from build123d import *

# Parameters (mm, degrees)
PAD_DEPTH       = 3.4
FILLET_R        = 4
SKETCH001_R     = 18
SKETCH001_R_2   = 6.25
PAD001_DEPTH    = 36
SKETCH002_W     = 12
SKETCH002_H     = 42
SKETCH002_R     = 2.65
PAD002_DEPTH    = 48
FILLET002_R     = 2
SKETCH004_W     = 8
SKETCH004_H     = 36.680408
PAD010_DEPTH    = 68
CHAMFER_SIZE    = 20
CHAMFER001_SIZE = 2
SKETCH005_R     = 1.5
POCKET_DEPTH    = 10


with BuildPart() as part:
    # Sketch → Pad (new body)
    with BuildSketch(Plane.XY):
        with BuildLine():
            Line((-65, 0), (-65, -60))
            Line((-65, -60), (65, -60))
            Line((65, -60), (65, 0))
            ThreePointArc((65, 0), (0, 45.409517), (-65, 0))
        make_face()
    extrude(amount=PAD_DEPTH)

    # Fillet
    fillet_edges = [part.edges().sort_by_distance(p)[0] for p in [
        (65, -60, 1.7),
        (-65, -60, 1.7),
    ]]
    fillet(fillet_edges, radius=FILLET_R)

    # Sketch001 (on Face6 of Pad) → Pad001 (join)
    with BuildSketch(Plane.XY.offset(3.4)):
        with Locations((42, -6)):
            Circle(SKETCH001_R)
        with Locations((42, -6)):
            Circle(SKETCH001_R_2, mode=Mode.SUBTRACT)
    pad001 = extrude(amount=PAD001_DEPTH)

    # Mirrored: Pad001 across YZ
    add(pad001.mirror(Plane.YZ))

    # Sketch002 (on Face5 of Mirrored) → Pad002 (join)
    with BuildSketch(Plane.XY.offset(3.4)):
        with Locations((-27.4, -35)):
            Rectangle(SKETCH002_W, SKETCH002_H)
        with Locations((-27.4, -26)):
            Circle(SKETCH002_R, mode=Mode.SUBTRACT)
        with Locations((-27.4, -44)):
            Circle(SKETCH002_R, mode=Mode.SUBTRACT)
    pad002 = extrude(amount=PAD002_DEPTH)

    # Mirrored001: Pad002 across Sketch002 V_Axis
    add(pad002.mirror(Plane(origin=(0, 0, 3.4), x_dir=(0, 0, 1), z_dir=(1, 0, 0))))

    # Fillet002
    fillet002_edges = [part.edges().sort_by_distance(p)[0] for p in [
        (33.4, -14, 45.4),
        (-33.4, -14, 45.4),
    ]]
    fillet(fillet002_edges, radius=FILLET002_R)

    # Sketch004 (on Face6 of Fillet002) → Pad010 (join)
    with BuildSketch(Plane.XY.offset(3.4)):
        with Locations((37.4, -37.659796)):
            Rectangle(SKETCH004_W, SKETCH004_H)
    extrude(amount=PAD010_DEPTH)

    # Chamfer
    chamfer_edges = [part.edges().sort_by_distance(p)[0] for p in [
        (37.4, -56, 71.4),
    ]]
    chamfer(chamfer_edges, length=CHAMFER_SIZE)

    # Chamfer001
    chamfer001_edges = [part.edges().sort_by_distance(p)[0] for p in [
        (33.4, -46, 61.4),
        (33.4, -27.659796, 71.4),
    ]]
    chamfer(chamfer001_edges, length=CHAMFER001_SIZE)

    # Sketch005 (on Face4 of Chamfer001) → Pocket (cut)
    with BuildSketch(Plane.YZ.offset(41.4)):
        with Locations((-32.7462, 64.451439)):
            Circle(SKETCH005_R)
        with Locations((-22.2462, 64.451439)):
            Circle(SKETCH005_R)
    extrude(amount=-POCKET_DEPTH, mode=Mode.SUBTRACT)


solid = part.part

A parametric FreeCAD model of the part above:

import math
import FreeCAD as App
import Part
import Sketcher
Q = App.Units.Quantity


def edges_at(feature, points):
    """Names of the edges that pass closest to the given points."""
    edges = feature.Shape.Edges
    near = lambda p: min(range(len(edges)), key=lambda i: edges[i].distToShape(Part.Vertex(*p))[0])
    return sorted({f"Edge{near(p) + 1}" for p in points})


def add_polygon(sketch, points):
    """Adds a closed chain of lines whose ends are joined by coincident constraints."""
    first, n = sketch.GeometryCount, len(points)
    for a, b in zip(points, points[1:] + points[:1]):
        sketch.addGeometry(Part.LineSegment(App.Vector(*a, 0), App.Vector(*b, 0)), False)
    for i in range(n):
        sketch.addConstraint(Sketcher.Constraint("Coincident", first + i, 2, first + (i + 1) % n, 1))

doc = App.newDocument("Part")
body = doc.addObject("PartDesign::Body", "Body")

sketch1 = body.newObject("Sketcher::SketchObject", "Sketch")
sketch1.AttachmentSupport = (doc.getObject("XY_Plane"), [""])
sketch1.MapMode = "FlatFace"
sketch1.addGeometry(Part.LineSegment(App.Vector(-65, 0, 0), App.Vector(-65, -60, 0)), False)
sketch1.addGeometry(Part.LineSegment(App.Vector(-65, -60, 0), App.Vector(65, -60, 0)), False)
sketch1.addGeometry(Part.LineSegment(App.Vector(65, -60, 0), App.Vector(65, 0, 0)), False)
sketch1.addGeometry(Part.ArcOfCircle(Part.Circle(App.Vector(0, -23.816326, 0), App.Vector(0, 0, 1), 69.225843), math.radians(20.123088), math.radians(159.876912)), False)
sketch1.addConstraint(Sketcher.Constraint("Coincident", 0, 2, 1, 1))
sketch1.addConstraint(Sketcher.Constraint("Coincident", 1, 2, 2, 1))
sketch1.addConstraint(Sketcher.Constraint("Coincident", 2, 2, 3, 1))
sketch1.addConstraint(Sketcher.Constraint("Coincident", 3, 2, 0, 1))
sketch1.addConstraint(Sketcher.Constraint("Vertical", 0))
sketch1.addConstraint(Sketcher.Constraint("Horizontal", 1))
sketch1.addConstraint(Sketcher.Constraint("Vertical", 2))
sketch1.addConstraint(Sketcher.Constraint("Symmetric", 2, 2, 3, 2, -1, 1))
sketch1.addConstraint(Sketcher.Constraint("PointOnObject", 3, 3, -2))
sketch1.addConstraint(Sketcher.Constraint("DistanceX", 1, 1, 1, 2, Q("130 mm")))
sketch1.addConstraint(Sketcher.Constraint("DistanceY", 0, 2, 0, 1, Q("60 mm")))
sketch1.addConstraint(Sketcher.Constraint("Radius", 3, Q("69.225843 mm")))
pad1 = body.newObject("PartDesign::Pad", "Pad")
pad1.Profile = sketch1
pad1.Length = 3.4
doc.recompute()

fillet = body.newObject("PartDesign::Fillet", "Fillet")
fillet.Base = (pad1, edges_at(pad1, [(65, -60, 1.7), (-65, -60, 1.7)]))
fillet.Radius = 4

sketch2 = body.newObject("Sketcher::SketchObject", "Sketch001")
sketch2.AttachmentSupport = (doc.getObject("XY_Plane"), [""])
sketch2.MapMode = "FlatFace"
sketch2.AttachmentOffset = App.Placement(App.Vector(0, 0, 3.4), App.Rotation())
sketch2.addGeometry(Part.Circle(App.Vector(42, -6, 0), App.Vector(0, 0, 1), 18), False)
sketch2.addGeometry(Part.Circle(App.Vector(42, -6, 0), App.Vector(0, 0, 1), 6.25), False)
sketch2.addConstraint(Sketcher.Constraint("Coincident", 1, 3, 0, 3))
sketch2.addConstraint(Sketcher.Constraint("Diameter", 0, Q("36 mm")))
sketch2.addConstraint(Sketcher.Constraint("Diameter", 1, Q("12.5 mm")))
sketch2.addConstraint(Sketcher.Constraint("DistanceX", -1, 1, 0, 3, Q("42 mm")))
sketch2.addConstraint(Sketcher.Constraint("DistanceY", 0, 3, -1, 1, Q("6 mm")))
pad2 = body.newObject("PartDesign::Pad", "Pad001")
pad2.Profile = sketch2
pad2.Length = 36
doc.recompute()

mirrored = body.newObject("PartDesign::Mirrored", "Mirrored")
mirrored.Originals = [pad2]
mirrored.MirrorPlane = (doc.getObject("YZ_Plane"), [""])
body.Tip = mirrored

sketch3 = body.newObject("Sketcher::SketchObject", "Sketch002")
sketch3.AttachmentSupport = (doc.getObject("XY_Plane"), [""])
sketch3.MapMode = "FlatFace"
sketch3.AttachmentOffset = App.Placement(App.Vector(0, 0, 3.4), App.Rotation())
add_polygon(sketch3, [(-33.4, -14), (-33.4, -56), (-21.4, -56), (-21.4, -14)])
sketch3.addGeometry(Part.Circle(App.Vector(-27.4, -44, 0), App.Vector(0, 0, 1), 2.65), False)
sketch3.addGeometry(Part.Circle(App.Vector(-27.4, -26, 0), App.Vector(0, 0, 1), 2.65), False)
sketch3.addConstraint(Sketcher.Constraint("Vertical", 0))
sketch3.addConstraint(Sketcher.Constraint("Horizontal", 1))
sketch3.addConstraint(Sketcher.Constraint("Vertical", 2))
sketch3.addConstraint(Sketcher.Constraint("Horizontal", 3))
sketch3.addConstraint(Sketcher.Constraint("Equal", 4, 5))
sketch3.addConstraint(Sketcher.Constraint("Vertical", 4, 3, 5, 3))
sketch3.addConstraint(Sketcher.Constraint("Diameter", 4, Q("5.3 mm")))
sketch3.addConstraint(Sketcher.Constraint("DistanceX", 1, 1, 1, 2, Q("12 mm")))
sketch3.addConstraint(Sketcher.Constraint("DistanceY", 0, 2, 0, 1, Q("42 mm")))
sketch3.addConstraint(Sketcher.Constraint("DistanceY", 4, 3, -1, 1, Q("44 mm")))
sketch3.addConstraint(Sketcher.Constraint("DistanceY", 5, 3, -1, 1, Q("26 mm")))
sketch3.addConstraint(Sketcher.Constraint("DistanceY", 0, 2, -1, 1, Q("56 mm")))
sketch3.addConstraint(Sketcher.Constraint("DistanceX", 0, 2, 4, 3, Q("6 mm")))
sketch3.addConstraint(Sketcher.Constraint("DistanceX", 4, 3, -1, 1, Q("27.4 mm")))
pad3 = body.newObject("PartDesign::Pad", "Pad002")
pad3.Profile = sketch3
pad3.Length = 48
doc.recompute()

mirrored2 = body.newObject("PartDesign::Mirrored", "Mirrored001")
mirrored2.Originals = [pad3]
mirrored2.MirrorPlane = (doc.getObject("YZ_Plane"), [""])
body.Tip = mirrored2
doc.recompute()

fillet2 = body.newObject("PartDesign::Fillet", "Fillet001")
fillet2.Base = (mirrored2, edges_at(mirrored2, [(33.4, -14, 45.4), (-33.4, -14, 45.4)]))
fillet2.Radius = 2

sketch4 = body.newObject("Sketcher::SketchObject", "Sketch003")
sketch4.AttachmentSupport = (doc.getObject("XY_Plane"), [""])
sketch4.MapMode = "FlatFace"
sketch4.AttachmentOffset = App.Placement(App.Vector(0, 0, 3.4), App.Rotation())
add_polygon(sketch4, [(33.4, -19.319592), (33.4, -56), (41.4, -56), (41.4, -19.319592)])
sketch4.addConstraint(Sketcher.Constraint("Vertical", 0))
sketch4.addConstraint(Sketcher.Constraint("Horizontal", 1))
sketch4.addConstraint(Sketcher.Constraint("Vertical", 2))
sketch4.addConstraint(Sketcher.Constraint("Horizontal", 3))
sketch4.addConstraint(Sketcher.Constraint("DistanceX", 1, 1, 1, 2, Q("8 mm")))
sketch4.addConstraint(Sketcher.Constraint("DistanceY", 0, 2, -1, 1, Q("56 mm")))
sketch4.addConstraint(Sketcher.Constraint("DistanceX", -1, 1, 0, 2, Q("33.4 mm")))
sketch4.addConstraint(Sketcher.Constraint("DistanceY", 0, 2, 0, 1, Q("36.680408 mm")))
pad4 = body.newObject("PartDesign::Pad", "Pad003")
pad4.Profile = sketch4
pad4.Length = 68
doc.recompute()

chamfer = body.newObject("PartDesign::Chamfer", "Chamfer")
chamfer.Base = (pad4, edges_at(pad4, [(37.4, -56, 71.4)]))
chamfer.Size = 20
doc.recompute()

chamfer2 = body.newObject("PartDesign::Chamfer", "Chamfer001")
chamfer2.Base = (chamfer, edges_at(chamfer, [(33.4, -46, 61.4), (33.4, -27.66, 71.4)]))
chamfer2.Size = 2

sketch5 = body.newObject("Sketcher::SketchObject", "Sketch004")
sketch5.AttachmentSupport = (doc.getObject("YZ_Plane"), [""])
sketch5.MapMode = "FlatFace"
sketch5.AttachmentOffset = App.Placement(App.Vector(0, 0, 41.4), App.Rotation())
sketch5.addGeometry(Part.Circle(App.Vector(-32.7462, 64.451439, 0), App.Vector(0, 0, 1), 1.5), False)
sketch5.addGeometry(Part.Circle(App.Vector(-22.2462, 64.451439, 0), App.Vector(0, 0, 1), 1.5), False)
sketch5.addConstraint(Sketcher.Constraint("Equal", 0, 1))
sketch5.addConstraint(Sketcher.Constraint("Horizontal", 0, 3, 1, 3))
sketch5.addConstraint(Sketcher.Constraint("Diameter", 0, Q("3 mm")))
sketch5.addConstraint(Sketcher.Constraint("DistanceX", 0, 3, 1, 3, Q("10.5 mm")))
sketch5.addConstraint(Sketcher.Constraint("DistanceX", 0, 3, -1, 1, Q("32.7462 mm")))
sketch5.addConstraint(Sketcher.Constraint("DistanceY", -1, 1, 0, 3, Q("64.451439 mm")))
pocket1 = body.newObject("PartDesign::Pocket", "Pocket")
pocket1.Profile = sketch5
pocket1.Length = 10

doc.recompute()
